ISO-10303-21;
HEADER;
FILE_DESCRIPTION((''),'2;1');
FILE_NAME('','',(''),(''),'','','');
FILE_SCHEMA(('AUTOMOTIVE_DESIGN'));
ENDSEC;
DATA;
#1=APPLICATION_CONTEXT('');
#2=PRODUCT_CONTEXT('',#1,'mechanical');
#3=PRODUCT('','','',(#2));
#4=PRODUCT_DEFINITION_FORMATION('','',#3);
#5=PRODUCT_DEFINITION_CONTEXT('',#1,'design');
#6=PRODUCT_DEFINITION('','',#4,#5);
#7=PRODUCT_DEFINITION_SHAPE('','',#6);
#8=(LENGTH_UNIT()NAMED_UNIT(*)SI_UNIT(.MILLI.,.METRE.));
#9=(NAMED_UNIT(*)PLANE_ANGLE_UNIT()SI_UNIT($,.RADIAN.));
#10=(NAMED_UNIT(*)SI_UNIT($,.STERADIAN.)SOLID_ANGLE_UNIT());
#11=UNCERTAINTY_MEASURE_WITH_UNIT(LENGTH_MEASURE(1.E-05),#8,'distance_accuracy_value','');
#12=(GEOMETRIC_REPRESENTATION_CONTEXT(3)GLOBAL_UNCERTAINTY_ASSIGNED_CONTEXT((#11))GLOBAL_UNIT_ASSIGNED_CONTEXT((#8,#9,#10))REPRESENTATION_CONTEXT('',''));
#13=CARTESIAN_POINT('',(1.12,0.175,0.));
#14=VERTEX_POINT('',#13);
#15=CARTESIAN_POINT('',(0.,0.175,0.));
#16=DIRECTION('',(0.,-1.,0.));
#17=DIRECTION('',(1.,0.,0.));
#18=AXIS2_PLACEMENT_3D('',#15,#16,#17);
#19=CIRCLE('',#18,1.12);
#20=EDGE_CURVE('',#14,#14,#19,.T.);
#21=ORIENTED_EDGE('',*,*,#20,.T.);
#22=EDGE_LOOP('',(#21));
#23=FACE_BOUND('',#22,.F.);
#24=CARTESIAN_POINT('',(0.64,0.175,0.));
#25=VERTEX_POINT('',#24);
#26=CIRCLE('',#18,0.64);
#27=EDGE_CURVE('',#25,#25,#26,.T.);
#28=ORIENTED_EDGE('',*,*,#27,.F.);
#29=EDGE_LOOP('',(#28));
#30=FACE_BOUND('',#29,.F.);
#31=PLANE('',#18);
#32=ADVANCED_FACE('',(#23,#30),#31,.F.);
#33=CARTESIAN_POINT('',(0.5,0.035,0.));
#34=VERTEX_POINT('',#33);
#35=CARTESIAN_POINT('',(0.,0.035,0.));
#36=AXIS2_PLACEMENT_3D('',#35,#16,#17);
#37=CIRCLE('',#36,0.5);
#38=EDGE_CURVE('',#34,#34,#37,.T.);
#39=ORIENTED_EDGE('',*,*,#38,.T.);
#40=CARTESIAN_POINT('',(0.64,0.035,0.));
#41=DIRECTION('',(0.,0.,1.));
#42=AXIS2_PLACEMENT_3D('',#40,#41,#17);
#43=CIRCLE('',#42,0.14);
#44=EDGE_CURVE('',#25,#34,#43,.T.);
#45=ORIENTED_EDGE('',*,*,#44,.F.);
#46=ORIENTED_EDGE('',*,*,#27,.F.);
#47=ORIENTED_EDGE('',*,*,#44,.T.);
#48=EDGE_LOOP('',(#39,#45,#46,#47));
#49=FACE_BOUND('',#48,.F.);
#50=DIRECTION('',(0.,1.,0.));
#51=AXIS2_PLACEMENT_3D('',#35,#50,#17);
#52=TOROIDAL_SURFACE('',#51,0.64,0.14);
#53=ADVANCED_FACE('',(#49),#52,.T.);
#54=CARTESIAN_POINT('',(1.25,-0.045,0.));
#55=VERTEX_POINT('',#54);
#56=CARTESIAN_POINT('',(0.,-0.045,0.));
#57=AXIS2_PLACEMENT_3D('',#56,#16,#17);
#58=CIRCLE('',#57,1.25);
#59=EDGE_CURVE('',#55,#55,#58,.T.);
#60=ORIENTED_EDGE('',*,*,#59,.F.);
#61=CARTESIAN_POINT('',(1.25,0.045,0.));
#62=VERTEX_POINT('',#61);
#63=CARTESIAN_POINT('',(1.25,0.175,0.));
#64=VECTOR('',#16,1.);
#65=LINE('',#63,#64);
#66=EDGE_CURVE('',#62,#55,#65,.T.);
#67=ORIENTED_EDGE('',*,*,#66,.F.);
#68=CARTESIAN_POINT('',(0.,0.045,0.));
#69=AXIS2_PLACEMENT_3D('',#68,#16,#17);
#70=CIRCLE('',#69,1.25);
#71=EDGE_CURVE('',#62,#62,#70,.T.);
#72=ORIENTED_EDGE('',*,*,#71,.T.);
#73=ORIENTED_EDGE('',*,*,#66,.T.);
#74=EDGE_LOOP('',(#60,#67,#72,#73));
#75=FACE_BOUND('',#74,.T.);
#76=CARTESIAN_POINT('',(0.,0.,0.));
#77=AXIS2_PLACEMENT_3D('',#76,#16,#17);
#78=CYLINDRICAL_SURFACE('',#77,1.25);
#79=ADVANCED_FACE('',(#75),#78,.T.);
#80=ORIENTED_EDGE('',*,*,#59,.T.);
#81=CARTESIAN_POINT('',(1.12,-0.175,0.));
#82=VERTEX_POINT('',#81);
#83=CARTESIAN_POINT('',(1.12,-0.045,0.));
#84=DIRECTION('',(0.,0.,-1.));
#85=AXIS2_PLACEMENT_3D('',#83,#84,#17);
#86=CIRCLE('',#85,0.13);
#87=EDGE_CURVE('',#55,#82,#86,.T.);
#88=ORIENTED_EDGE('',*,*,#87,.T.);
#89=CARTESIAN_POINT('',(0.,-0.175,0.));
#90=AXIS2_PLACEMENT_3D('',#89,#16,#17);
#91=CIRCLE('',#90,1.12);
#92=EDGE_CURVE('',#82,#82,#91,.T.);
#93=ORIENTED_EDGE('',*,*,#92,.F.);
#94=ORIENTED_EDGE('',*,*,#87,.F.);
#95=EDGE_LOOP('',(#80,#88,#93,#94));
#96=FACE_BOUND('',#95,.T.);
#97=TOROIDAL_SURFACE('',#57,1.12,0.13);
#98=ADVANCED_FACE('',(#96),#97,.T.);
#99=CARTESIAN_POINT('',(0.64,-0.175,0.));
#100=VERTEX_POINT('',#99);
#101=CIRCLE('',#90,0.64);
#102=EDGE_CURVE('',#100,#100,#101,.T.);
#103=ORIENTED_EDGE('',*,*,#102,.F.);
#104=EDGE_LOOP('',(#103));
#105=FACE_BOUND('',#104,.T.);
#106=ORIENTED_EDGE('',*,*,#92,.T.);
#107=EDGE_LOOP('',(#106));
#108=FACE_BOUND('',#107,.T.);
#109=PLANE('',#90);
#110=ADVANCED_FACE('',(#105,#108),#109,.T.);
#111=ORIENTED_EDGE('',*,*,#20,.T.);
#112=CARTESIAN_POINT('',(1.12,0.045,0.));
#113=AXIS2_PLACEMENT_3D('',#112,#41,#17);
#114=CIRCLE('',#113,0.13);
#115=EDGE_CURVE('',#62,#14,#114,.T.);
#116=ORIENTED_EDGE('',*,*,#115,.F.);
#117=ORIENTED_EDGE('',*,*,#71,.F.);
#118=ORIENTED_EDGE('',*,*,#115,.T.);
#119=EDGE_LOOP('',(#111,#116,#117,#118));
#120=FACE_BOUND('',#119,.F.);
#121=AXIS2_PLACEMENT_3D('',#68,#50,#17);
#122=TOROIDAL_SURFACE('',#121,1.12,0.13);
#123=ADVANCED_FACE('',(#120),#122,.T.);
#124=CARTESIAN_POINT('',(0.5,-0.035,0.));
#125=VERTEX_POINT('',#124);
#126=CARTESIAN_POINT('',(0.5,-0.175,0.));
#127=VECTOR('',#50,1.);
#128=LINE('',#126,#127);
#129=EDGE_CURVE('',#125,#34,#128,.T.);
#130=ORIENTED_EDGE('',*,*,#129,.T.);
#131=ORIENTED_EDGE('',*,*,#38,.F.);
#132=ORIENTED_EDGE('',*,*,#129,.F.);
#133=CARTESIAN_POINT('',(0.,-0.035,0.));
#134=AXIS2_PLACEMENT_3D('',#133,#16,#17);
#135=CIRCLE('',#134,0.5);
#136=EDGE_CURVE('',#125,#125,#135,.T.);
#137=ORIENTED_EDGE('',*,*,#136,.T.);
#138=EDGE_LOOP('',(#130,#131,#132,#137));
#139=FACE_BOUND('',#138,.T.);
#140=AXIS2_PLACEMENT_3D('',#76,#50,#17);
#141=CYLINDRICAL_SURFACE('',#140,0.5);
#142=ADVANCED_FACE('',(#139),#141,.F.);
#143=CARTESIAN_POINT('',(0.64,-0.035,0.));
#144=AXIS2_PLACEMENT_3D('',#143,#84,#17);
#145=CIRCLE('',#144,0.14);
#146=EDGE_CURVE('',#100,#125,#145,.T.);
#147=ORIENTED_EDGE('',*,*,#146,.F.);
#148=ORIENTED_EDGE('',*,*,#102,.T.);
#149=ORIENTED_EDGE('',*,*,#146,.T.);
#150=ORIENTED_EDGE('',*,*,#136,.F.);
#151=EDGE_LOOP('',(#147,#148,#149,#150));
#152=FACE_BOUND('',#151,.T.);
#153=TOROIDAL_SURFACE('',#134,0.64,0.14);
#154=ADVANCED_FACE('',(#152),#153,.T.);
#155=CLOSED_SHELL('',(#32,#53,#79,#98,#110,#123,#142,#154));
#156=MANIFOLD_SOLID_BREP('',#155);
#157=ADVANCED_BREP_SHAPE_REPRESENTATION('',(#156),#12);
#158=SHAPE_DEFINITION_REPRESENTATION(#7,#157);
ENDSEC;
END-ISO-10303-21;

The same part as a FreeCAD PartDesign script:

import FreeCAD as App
import Part
import Sketcher

V = App.Vector


def edges_at(feature, points):
    """Names of the edges that pass closest to the given points."""
    edges = feature.Shape.Edges
    near = lambda p: min(range(len(edges)), key=lambda i: edges[i].distToShape(Part.Vertex(*p))[0])
    return sorted({f"Edge{near(p) + 1}" for p in points})

doc = App.newDocument("Part")
body = doc.addObject("PartDesign::Body", "Body")

# Sketch on XZ plane
sketch1 = body.newObject("Sketcher::SketchObject", "Sketch")
sketch1.AttachmentSupport = (doc.getObject("XZ_Plane"), [""])
sketch1.MapMode = "FlatFace"
sketch1.addGeometry([
    Part.Circle(V(0, 0, 0), V(0, 0, 1), 1.2),
    Part.Circle(V(0, 0, 0), V(0, 0, 1), 0.5),
], False)
sketch1.addConstraint([
    Sketcher.Constraint("Coincident", 0, 3, -1, 1),
    Sketcher.Constraint("Coincident", 1, 3, -1, 1),
    Sketcher.Constraint("Diameter", 1, 1.0),
    Sketcher.Constraint("Diameter", 0, 2.5),
])
pad1 = body.newObject("PartDesign::Pad", "Pad")
pad1.Profile = sketch1
pad1.Length = 0.35
pad1.Midplane = True
doc.recompute()

fillet = body.newObject("PartDesign::Fillet", "Fillet")
fillet.Base = (pad1, edges_at(pad1, [(-1.25, -0.175, 0), (-1.25, 0.175, 0)]))
fillet.Radius = 0.13
doc.recompute()

fillet2 = body.newObject("PartDesign::Fillet", "Fillet001")
fillet2.Base = (fillet, edges_at(fillet, [(-0.5, -0.175, 0), (-0.5, 0.175, 0)]))
fillet2.Radius = 0.14

doc.recompute()
